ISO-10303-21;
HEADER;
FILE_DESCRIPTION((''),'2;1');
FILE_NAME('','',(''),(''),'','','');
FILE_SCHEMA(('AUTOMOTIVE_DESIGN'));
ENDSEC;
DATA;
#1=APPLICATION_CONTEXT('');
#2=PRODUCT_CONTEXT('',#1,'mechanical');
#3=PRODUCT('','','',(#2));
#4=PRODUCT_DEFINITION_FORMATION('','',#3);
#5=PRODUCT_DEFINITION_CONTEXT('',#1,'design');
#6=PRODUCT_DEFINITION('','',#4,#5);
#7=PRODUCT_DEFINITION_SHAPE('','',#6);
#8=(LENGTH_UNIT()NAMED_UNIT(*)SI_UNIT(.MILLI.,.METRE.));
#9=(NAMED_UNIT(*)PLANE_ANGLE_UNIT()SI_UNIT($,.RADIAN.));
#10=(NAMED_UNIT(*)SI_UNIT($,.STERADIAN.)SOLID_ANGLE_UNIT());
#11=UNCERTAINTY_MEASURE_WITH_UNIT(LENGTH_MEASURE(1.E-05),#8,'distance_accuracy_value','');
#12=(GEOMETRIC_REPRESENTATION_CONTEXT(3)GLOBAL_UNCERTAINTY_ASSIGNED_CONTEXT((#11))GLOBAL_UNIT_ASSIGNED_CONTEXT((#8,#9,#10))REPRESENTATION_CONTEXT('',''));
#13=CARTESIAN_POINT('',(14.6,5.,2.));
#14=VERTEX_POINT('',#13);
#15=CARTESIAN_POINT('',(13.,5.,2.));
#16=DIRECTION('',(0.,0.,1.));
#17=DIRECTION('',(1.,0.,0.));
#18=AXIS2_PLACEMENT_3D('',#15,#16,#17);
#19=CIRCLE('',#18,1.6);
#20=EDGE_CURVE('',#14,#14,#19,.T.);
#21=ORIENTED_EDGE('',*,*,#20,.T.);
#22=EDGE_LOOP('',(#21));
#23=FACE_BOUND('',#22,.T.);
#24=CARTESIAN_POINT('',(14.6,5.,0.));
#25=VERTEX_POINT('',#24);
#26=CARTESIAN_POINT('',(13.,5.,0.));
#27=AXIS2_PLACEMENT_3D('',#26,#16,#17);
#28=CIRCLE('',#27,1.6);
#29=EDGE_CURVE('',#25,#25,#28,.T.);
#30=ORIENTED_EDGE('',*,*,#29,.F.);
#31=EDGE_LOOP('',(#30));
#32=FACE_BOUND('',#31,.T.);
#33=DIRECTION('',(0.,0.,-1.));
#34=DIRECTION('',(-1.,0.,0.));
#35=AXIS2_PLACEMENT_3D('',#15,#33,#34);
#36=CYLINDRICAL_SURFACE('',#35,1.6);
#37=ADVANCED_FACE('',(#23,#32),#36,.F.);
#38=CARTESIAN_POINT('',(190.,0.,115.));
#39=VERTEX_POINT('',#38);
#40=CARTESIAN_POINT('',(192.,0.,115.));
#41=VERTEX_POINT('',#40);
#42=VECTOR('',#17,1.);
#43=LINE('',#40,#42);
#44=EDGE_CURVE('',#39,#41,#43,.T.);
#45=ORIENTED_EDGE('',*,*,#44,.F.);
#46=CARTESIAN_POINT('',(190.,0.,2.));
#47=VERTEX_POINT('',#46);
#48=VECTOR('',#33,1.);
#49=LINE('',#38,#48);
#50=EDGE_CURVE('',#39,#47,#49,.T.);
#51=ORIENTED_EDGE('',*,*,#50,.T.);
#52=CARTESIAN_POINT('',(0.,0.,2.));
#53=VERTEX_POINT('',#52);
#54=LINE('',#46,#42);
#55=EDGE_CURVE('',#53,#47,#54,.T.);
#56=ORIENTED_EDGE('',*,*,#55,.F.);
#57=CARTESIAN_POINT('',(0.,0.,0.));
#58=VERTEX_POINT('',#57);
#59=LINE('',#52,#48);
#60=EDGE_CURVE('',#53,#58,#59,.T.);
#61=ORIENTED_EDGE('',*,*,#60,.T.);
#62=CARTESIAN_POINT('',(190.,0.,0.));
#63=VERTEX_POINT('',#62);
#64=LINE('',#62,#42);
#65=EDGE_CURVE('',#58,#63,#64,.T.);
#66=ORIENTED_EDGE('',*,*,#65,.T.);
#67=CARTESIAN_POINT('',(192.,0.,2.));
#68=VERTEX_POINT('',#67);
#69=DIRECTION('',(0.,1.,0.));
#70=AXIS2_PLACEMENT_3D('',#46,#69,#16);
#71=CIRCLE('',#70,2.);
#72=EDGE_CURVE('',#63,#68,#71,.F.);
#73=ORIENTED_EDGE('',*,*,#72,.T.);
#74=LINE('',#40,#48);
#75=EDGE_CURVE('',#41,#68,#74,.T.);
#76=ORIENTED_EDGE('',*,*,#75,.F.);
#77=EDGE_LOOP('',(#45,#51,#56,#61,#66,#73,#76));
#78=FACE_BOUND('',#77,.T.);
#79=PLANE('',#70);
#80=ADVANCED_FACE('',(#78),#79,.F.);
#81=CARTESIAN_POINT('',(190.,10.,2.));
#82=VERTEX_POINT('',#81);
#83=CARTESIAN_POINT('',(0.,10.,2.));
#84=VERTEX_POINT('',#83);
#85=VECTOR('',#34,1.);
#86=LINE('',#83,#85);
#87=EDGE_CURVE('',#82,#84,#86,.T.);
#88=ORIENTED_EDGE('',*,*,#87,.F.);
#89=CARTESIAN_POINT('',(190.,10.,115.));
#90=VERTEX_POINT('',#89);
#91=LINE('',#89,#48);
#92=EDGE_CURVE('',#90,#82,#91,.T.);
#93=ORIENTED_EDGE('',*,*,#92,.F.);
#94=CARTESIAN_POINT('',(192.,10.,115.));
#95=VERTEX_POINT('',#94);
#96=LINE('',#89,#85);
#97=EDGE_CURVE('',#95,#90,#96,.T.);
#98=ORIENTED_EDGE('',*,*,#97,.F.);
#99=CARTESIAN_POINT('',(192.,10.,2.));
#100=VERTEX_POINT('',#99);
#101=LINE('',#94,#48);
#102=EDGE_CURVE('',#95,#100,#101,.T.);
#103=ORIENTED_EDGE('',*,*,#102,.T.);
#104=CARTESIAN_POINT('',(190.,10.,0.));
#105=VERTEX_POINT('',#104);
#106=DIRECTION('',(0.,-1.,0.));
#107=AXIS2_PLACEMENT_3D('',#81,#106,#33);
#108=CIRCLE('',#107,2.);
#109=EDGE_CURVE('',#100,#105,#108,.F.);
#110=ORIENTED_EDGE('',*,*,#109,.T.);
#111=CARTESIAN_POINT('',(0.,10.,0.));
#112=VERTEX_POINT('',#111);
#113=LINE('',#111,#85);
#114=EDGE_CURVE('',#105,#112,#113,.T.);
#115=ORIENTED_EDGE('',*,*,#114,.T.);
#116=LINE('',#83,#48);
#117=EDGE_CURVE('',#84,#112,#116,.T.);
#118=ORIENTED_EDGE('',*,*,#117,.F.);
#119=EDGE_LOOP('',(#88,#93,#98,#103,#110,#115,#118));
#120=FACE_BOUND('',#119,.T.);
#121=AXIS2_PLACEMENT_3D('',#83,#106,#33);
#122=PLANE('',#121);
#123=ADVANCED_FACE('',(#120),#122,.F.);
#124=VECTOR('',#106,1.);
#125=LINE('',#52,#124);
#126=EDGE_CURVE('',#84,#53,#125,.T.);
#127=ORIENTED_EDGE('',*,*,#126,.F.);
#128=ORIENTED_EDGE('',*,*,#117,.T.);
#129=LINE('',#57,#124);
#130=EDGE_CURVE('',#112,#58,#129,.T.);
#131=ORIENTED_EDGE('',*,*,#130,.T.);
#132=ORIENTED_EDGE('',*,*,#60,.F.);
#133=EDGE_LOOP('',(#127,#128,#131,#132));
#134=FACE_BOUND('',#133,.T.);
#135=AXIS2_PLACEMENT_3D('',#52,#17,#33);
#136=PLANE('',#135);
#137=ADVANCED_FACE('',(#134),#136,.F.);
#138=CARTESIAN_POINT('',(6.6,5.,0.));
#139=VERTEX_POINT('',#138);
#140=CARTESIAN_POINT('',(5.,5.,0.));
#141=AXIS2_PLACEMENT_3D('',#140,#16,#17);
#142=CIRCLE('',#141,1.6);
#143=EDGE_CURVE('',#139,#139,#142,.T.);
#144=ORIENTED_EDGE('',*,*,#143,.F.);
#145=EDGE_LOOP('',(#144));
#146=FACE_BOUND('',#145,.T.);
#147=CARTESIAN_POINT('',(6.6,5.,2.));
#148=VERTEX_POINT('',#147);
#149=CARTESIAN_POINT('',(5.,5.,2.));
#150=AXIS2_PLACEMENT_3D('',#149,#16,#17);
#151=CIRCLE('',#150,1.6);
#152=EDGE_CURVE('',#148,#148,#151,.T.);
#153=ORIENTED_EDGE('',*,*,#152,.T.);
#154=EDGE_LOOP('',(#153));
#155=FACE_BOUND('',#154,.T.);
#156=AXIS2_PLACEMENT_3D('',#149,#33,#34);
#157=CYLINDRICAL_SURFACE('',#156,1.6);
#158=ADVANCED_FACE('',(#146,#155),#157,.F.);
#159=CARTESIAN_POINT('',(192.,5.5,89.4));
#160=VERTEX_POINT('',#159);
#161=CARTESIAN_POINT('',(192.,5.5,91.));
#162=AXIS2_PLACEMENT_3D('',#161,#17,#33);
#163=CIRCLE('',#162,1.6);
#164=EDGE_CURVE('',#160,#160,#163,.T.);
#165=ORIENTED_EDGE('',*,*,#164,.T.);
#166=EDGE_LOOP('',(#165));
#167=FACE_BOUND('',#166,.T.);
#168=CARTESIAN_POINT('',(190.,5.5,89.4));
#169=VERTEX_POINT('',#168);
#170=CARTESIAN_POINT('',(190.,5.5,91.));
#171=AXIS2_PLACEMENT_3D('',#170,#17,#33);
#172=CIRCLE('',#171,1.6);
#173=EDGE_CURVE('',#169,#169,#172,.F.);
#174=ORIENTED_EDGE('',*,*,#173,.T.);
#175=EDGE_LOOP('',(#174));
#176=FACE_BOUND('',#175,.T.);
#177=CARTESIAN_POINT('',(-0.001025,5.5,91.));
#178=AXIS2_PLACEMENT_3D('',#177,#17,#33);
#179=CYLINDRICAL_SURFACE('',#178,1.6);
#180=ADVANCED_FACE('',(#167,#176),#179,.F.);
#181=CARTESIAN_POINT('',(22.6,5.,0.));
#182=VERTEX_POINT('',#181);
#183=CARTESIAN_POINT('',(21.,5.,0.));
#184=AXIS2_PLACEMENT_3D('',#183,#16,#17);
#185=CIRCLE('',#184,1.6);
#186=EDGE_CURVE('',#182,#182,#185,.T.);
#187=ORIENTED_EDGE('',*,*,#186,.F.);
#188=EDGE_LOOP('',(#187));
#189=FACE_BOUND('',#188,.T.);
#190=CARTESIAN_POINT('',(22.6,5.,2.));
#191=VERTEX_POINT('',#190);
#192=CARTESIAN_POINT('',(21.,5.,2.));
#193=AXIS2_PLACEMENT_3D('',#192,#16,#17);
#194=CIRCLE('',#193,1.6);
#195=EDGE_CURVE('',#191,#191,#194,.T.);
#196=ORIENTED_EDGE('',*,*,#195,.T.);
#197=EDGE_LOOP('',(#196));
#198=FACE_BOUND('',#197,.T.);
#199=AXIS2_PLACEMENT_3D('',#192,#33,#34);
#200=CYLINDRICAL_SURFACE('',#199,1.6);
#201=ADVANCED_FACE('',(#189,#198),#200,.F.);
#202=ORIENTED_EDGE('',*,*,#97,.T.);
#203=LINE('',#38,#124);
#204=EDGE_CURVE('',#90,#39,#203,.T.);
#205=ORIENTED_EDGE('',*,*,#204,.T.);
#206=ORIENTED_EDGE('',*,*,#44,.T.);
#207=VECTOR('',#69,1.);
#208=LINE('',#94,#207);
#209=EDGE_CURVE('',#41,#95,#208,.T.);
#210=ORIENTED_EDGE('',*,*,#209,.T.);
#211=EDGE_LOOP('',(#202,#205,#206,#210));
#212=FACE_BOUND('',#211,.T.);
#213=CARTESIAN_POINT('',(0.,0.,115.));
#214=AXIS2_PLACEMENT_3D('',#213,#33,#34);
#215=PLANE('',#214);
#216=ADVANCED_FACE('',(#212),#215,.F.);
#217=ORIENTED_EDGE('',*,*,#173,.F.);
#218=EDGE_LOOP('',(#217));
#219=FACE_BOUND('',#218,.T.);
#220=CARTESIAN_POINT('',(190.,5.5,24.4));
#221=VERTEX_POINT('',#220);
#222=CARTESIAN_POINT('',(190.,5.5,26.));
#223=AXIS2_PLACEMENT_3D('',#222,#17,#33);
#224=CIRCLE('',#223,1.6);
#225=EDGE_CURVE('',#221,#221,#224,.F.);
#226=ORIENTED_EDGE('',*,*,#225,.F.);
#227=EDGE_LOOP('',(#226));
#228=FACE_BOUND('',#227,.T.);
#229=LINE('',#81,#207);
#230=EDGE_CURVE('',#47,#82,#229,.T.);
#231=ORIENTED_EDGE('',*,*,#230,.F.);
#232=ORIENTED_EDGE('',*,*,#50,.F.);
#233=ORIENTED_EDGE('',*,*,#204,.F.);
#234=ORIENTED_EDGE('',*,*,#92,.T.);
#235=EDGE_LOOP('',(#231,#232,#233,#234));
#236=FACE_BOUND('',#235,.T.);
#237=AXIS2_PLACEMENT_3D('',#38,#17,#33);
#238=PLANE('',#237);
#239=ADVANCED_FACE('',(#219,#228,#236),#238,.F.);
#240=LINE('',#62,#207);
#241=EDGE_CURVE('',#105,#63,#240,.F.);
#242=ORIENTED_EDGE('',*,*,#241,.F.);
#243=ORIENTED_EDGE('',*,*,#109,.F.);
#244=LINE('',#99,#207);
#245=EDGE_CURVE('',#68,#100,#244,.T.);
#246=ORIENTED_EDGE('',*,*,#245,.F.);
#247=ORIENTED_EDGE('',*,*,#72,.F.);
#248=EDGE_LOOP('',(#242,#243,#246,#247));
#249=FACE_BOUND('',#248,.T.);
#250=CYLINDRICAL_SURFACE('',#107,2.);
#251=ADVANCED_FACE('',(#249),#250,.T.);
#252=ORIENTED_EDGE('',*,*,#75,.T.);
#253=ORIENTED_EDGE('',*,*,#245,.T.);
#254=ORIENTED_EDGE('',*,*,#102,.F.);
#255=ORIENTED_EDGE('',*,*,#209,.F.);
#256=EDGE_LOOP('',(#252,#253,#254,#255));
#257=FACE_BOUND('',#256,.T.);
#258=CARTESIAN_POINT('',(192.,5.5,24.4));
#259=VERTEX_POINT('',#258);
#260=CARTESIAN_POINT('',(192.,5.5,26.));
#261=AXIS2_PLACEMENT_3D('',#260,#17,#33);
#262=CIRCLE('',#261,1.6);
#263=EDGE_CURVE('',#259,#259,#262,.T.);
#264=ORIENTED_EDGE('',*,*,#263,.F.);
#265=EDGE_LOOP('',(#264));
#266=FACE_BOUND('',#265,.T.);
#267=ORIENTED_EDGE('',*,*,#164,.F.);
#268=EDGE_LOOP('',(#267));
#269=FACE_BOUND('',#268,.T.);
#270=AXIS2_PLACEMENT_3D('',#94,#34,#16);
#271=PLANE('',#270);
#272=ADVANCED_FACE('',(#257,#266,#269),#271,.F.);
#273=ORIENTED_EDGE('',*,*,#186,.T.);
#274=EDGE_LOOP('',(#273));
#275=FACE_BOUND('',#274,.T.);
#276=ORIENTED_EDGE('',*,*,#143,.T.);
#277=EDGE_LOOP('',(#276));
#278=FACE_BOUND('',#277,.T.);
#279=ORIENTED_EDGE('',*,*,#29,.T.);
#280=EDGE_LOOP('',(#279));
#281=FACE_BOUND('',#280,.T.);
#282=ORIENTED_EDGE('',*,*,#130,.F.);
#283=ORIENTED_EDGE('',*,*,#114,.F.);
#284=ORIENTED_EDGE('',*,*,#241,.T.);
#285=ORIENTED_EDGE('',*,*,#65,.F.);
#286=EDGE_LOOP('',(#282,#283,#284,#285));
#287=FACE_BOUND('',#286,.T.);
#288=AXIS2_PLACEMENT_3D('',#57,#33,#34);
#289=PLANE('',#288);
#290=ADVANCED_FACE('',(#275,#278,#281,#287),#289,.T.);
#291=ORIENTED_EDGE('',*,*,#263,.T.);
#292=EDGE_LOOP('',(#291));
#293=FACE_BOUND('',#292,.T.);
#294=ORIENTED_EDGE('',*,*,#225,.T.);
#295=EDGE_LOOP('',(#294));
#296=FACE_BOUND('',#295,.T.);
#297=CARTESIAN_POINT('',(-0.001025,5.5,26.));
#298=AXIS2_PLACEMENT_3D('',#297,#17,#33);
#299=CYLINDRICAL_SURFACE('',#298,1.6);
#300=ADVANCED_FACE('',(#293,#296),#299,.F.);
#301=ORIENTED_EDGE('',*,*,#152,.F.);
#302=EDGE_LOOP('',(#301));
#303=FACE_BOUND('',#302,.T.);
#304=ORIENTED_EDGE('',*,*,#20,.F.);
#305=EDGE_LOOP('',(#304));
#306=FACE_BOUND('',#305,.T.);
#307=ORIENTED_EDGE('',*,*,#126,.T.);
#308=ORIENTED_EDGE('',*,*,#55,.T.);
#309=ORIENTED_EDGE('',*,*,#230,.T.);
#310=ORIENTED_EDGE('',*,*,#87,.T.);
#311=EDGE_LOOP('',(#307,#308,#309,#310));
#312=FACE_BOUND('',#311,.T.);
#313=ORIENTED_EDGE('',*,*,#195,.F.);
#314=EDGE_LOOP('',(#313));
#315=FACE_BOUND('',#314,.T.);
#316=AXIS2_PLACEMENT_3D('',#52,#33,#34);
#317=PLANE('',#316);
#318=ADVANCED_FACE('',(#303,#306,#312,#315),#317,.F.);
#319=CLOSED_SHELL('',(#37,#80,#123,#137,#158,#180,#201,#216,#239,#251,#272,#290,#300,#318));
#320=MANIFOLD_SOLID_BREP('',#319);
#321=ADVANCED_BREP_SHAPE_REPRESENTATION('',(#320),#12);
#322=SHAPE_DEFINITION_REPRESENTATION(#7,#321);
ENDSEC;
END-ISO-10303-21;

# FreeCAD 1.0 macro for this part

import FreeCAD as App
import Part
import Sketcher
Q = App.Units.Quantity


def edges_at(feature, points):
    """Names of the edges that pass closest to the given points."""
    edges = feature.Shape.Edges
    near = lambda p: min(range(len(edges)), key=lambda i: edges[i].distToShape(Part.Vertex(*p))[0])
    return sorted({f"Edge{near(p) + 1}" for p in points})


def add_polygon(sketch, points):
    """Adds a closed chain of lines whose ends are joined by coincident constraints."""
    first, n = sketch.GeometryCount, len(points)
    for a, b in zip(points, points[1:] + points[:1]):
        sketch.addGeometry(Part.LineSegment(App.Vector(*a, 0), App.Vector(*b, 0)), False)
    for i in range(n):
        sketch.addConstraint(Sketcher.Constraint("Coincident", first + i, 2, first + (i + 1) % n, 1))

doc = App.newDocument("Part")
body = doc.addObject("PartDesign::Body", "Body")

# Sketch on XY plane
sketch1 = doc.addObject("Sketcher::SketchObject", "Sketch")
body.addObject(sketch1)
sketch1.AttachmentSupport = (doc.XY_Plane, [""])
sketch1.MapMode = "FlatFace"
add_polygon(sketch1, [(0, 10), (0, 0), (190, 0), (190, 10)])  # lines 0-3
sketch1.addGeometry(Part.Circle(App.Vector(5, 5, 0), App.Vector(0, 0, 1), 1.6), False)  # 4
sketch1.addGeometry(Part.Circle(App.Vector(13, 5, 0), App.Vector(0, 0, 1), 1.6), False)  # 5
sketch1.addGeometry(Part.Circle(App.Vector(21, 5, 0), App.Vector(0, 0, 1), 1.6), False)  # 6
sketch1.addConstraint(Sketcher.Constraint("Vertical", 0))
sketch1.addConstraint(Sketcher.Constraint("Horizontal", 1))
sketch1.addConstraint(Sketcher.Constraint("Vertical", 2))
sketch1.addConstraint(Sketcher.Constraint("Horizontal", 3))
sketch1.addConstraint(Sketcher.Constraint("Coincident", 0, 2, -1, 1))
sketch1.addConstraint(Sketcher.Constraint("Equal", 4, 5))
sketch1.addConstraint(Sketcher.Constraint("Equal", 5, 6))
sketch1.addConstraint(Sketcher.Constraint("Horizontal", 4, 3, 5, 3))
sketch1.addConstraint(Sketcher.Constraint("Horizontal", 5, 3, 6, 3))
sketch1.addConstraint(Sketcher.Constraint("Diameter", 4, Q("3.2 mm")))
sketch1.addConstraint(Sketcher.Constraint("DistanceX", 1, 1, 1, 2, Q("190 mm")))
sketch1.addConstraint(Sketcher.Constraint("DistanceY", 0, 2, 0, 1, Q("10 mm")))
sketch1.addConstraint(Sketcher.Constraint("DistanceX", -1, 1, 4, 3, Q("5 mm")))
sketch1.addConstraint(Sketcher.Constraint("DistanceY", -1, 1, 4, 3, Q("5 mm")))
sketch1.addConstraint(Sketcher.Constraint("DistanceX", -1, 1, 5, 3, Q("13 mm")))
sketch1.addConstraint(Sketcher.Constraint("DistanceX", -1, 1, 6, 3, Q("21 mm")))
pad1 = doc.addObject("PartDesign::Pad", "Pad")
body.addObject(pad1)
pad1.Profile = sketch1
pad1.Length = 2

# Sketch on XY plane
sketch2 = doc.addObject("Sketcher::SketchObject", "Sketch001")
body.addObject(sketch2)
sketch2.AttachmentSupport = (doc.XY_Plane, [""])
sketch2.MapMode = "FlatFace"
add_polygon(sketch2, [(190, 10), (190, 0), (192, 0), (192, 10)])  # lines 0-3
sketch2.addConstraint(Sketcher.Constraint("Vertical", 0))
sketch2.addConstraint(Sketcher.Constraint("Horizontal", 1))
sketch2.addConstraint(Sketcher.Constraint("Vertical", 2))
sketch2.addConstraint(Sketcher.Constraint("Horizontal", 3))
sketch2.addConstraint(Sketcher.Constraint("PointOnObject", 0, 2, -1))
sketch2.addConstraint(Sketcher.Constraint("DistanceX", 1, 1, 1, 2, Q("2 mm")))
sketch2.addConstraint(Sketcher.Constraint("DistanceY", 0, 2, 0, 1, Q("10 mm")))
sketch2.addConstraint(Sketcher.Constraint("DistanceX", -1, 1, 0, 2, Q("190 mm")))
pad2 = doc.addObject("PartDesign::Pad", "Pad001")
body.addObject(pad2)
pad2.Profile = sketch2
pad2.Length = 115
doc.recompute()

fillet = doc.addObject("PartDesign::Fillet", "Fillet")
body.addObject(fillet)
fillet.Base = (pad2, edges_at(pad2, [(192, 5, 0)]))
fillet.Radius = 2

# Sketch on YZ plane
sketch3 = doc.addObject("Sketcher::SketchObject", "Sketch002")
body.addObject(sketch3)
sketch3.AttachmentSupport = (doc.YZ_Plane, [""])
sketch3.MapMode = "FlatFace"
sketch3.AttachmentOffset = App.Placement(App.Vector(0, 0, 192), App.Rotation())
sketch3.addGeometry(Part.Circle(App.Vector(5.5, 91, 0), App.Vector(0, 0, 1), 1.6), False)
sketch3.addConstraint(Sketcher.Constraint("Diameter", 0, Q("3.2 mm")))
sketch3.addConstraint(Sketcher.Constraint("DistanceY", -1, 1, 0, 3, Q("91 mm")))
sketch3.addConstraint(Sketcher.Constraint("DistanceX", -1, 1, 0, 3, Q("5.5 mm")))
pocket1 = doc.addObject("PartDesign::Pocket", "Pocket")
body.addObject(pocket1)
pocket1.Profile = sketch3
pocket1.Type = "UpToFirst"

# Sketch on YZ plane
sketch4 = doc.addObject("Sketcher::SketchObject", "Sketch003")
body.addObject(sketch4)
sketch4.AttachmentSupport = (doc.YZ_Plane, [""])
sketch4.MapMode = "FlatFace"
sketch4.AttachmentOffset = App.Placement(App.Vector(0, 0, 192), App.Rotation())
sketch4.addGeometry(Part.Circle(App.Vector(5.5, 26, 0), App.Vector(0, 0, 1), 1.6), False)
sketch4.addConstraint(Sketcher.Constraint("Diameter", 0, Q("3.2 mm")))
sketch4.addConstraint(Sketcher.Constraint("DistanceY", -1, 1, 0, 3, Q("26 mm")))
sketch4.addConstraint(Sketcher.Constraint("DistanceX", -1, 1, 0, 3, Q("5.5 mm")))
pocket2 = doc.addObject("PartDesign::Pocket", "Pocket001")
body.addObject(pocket2)
pocket2.Profile = sketch4
pocket2.Type = "UpToFirst"

doc.recompute()
